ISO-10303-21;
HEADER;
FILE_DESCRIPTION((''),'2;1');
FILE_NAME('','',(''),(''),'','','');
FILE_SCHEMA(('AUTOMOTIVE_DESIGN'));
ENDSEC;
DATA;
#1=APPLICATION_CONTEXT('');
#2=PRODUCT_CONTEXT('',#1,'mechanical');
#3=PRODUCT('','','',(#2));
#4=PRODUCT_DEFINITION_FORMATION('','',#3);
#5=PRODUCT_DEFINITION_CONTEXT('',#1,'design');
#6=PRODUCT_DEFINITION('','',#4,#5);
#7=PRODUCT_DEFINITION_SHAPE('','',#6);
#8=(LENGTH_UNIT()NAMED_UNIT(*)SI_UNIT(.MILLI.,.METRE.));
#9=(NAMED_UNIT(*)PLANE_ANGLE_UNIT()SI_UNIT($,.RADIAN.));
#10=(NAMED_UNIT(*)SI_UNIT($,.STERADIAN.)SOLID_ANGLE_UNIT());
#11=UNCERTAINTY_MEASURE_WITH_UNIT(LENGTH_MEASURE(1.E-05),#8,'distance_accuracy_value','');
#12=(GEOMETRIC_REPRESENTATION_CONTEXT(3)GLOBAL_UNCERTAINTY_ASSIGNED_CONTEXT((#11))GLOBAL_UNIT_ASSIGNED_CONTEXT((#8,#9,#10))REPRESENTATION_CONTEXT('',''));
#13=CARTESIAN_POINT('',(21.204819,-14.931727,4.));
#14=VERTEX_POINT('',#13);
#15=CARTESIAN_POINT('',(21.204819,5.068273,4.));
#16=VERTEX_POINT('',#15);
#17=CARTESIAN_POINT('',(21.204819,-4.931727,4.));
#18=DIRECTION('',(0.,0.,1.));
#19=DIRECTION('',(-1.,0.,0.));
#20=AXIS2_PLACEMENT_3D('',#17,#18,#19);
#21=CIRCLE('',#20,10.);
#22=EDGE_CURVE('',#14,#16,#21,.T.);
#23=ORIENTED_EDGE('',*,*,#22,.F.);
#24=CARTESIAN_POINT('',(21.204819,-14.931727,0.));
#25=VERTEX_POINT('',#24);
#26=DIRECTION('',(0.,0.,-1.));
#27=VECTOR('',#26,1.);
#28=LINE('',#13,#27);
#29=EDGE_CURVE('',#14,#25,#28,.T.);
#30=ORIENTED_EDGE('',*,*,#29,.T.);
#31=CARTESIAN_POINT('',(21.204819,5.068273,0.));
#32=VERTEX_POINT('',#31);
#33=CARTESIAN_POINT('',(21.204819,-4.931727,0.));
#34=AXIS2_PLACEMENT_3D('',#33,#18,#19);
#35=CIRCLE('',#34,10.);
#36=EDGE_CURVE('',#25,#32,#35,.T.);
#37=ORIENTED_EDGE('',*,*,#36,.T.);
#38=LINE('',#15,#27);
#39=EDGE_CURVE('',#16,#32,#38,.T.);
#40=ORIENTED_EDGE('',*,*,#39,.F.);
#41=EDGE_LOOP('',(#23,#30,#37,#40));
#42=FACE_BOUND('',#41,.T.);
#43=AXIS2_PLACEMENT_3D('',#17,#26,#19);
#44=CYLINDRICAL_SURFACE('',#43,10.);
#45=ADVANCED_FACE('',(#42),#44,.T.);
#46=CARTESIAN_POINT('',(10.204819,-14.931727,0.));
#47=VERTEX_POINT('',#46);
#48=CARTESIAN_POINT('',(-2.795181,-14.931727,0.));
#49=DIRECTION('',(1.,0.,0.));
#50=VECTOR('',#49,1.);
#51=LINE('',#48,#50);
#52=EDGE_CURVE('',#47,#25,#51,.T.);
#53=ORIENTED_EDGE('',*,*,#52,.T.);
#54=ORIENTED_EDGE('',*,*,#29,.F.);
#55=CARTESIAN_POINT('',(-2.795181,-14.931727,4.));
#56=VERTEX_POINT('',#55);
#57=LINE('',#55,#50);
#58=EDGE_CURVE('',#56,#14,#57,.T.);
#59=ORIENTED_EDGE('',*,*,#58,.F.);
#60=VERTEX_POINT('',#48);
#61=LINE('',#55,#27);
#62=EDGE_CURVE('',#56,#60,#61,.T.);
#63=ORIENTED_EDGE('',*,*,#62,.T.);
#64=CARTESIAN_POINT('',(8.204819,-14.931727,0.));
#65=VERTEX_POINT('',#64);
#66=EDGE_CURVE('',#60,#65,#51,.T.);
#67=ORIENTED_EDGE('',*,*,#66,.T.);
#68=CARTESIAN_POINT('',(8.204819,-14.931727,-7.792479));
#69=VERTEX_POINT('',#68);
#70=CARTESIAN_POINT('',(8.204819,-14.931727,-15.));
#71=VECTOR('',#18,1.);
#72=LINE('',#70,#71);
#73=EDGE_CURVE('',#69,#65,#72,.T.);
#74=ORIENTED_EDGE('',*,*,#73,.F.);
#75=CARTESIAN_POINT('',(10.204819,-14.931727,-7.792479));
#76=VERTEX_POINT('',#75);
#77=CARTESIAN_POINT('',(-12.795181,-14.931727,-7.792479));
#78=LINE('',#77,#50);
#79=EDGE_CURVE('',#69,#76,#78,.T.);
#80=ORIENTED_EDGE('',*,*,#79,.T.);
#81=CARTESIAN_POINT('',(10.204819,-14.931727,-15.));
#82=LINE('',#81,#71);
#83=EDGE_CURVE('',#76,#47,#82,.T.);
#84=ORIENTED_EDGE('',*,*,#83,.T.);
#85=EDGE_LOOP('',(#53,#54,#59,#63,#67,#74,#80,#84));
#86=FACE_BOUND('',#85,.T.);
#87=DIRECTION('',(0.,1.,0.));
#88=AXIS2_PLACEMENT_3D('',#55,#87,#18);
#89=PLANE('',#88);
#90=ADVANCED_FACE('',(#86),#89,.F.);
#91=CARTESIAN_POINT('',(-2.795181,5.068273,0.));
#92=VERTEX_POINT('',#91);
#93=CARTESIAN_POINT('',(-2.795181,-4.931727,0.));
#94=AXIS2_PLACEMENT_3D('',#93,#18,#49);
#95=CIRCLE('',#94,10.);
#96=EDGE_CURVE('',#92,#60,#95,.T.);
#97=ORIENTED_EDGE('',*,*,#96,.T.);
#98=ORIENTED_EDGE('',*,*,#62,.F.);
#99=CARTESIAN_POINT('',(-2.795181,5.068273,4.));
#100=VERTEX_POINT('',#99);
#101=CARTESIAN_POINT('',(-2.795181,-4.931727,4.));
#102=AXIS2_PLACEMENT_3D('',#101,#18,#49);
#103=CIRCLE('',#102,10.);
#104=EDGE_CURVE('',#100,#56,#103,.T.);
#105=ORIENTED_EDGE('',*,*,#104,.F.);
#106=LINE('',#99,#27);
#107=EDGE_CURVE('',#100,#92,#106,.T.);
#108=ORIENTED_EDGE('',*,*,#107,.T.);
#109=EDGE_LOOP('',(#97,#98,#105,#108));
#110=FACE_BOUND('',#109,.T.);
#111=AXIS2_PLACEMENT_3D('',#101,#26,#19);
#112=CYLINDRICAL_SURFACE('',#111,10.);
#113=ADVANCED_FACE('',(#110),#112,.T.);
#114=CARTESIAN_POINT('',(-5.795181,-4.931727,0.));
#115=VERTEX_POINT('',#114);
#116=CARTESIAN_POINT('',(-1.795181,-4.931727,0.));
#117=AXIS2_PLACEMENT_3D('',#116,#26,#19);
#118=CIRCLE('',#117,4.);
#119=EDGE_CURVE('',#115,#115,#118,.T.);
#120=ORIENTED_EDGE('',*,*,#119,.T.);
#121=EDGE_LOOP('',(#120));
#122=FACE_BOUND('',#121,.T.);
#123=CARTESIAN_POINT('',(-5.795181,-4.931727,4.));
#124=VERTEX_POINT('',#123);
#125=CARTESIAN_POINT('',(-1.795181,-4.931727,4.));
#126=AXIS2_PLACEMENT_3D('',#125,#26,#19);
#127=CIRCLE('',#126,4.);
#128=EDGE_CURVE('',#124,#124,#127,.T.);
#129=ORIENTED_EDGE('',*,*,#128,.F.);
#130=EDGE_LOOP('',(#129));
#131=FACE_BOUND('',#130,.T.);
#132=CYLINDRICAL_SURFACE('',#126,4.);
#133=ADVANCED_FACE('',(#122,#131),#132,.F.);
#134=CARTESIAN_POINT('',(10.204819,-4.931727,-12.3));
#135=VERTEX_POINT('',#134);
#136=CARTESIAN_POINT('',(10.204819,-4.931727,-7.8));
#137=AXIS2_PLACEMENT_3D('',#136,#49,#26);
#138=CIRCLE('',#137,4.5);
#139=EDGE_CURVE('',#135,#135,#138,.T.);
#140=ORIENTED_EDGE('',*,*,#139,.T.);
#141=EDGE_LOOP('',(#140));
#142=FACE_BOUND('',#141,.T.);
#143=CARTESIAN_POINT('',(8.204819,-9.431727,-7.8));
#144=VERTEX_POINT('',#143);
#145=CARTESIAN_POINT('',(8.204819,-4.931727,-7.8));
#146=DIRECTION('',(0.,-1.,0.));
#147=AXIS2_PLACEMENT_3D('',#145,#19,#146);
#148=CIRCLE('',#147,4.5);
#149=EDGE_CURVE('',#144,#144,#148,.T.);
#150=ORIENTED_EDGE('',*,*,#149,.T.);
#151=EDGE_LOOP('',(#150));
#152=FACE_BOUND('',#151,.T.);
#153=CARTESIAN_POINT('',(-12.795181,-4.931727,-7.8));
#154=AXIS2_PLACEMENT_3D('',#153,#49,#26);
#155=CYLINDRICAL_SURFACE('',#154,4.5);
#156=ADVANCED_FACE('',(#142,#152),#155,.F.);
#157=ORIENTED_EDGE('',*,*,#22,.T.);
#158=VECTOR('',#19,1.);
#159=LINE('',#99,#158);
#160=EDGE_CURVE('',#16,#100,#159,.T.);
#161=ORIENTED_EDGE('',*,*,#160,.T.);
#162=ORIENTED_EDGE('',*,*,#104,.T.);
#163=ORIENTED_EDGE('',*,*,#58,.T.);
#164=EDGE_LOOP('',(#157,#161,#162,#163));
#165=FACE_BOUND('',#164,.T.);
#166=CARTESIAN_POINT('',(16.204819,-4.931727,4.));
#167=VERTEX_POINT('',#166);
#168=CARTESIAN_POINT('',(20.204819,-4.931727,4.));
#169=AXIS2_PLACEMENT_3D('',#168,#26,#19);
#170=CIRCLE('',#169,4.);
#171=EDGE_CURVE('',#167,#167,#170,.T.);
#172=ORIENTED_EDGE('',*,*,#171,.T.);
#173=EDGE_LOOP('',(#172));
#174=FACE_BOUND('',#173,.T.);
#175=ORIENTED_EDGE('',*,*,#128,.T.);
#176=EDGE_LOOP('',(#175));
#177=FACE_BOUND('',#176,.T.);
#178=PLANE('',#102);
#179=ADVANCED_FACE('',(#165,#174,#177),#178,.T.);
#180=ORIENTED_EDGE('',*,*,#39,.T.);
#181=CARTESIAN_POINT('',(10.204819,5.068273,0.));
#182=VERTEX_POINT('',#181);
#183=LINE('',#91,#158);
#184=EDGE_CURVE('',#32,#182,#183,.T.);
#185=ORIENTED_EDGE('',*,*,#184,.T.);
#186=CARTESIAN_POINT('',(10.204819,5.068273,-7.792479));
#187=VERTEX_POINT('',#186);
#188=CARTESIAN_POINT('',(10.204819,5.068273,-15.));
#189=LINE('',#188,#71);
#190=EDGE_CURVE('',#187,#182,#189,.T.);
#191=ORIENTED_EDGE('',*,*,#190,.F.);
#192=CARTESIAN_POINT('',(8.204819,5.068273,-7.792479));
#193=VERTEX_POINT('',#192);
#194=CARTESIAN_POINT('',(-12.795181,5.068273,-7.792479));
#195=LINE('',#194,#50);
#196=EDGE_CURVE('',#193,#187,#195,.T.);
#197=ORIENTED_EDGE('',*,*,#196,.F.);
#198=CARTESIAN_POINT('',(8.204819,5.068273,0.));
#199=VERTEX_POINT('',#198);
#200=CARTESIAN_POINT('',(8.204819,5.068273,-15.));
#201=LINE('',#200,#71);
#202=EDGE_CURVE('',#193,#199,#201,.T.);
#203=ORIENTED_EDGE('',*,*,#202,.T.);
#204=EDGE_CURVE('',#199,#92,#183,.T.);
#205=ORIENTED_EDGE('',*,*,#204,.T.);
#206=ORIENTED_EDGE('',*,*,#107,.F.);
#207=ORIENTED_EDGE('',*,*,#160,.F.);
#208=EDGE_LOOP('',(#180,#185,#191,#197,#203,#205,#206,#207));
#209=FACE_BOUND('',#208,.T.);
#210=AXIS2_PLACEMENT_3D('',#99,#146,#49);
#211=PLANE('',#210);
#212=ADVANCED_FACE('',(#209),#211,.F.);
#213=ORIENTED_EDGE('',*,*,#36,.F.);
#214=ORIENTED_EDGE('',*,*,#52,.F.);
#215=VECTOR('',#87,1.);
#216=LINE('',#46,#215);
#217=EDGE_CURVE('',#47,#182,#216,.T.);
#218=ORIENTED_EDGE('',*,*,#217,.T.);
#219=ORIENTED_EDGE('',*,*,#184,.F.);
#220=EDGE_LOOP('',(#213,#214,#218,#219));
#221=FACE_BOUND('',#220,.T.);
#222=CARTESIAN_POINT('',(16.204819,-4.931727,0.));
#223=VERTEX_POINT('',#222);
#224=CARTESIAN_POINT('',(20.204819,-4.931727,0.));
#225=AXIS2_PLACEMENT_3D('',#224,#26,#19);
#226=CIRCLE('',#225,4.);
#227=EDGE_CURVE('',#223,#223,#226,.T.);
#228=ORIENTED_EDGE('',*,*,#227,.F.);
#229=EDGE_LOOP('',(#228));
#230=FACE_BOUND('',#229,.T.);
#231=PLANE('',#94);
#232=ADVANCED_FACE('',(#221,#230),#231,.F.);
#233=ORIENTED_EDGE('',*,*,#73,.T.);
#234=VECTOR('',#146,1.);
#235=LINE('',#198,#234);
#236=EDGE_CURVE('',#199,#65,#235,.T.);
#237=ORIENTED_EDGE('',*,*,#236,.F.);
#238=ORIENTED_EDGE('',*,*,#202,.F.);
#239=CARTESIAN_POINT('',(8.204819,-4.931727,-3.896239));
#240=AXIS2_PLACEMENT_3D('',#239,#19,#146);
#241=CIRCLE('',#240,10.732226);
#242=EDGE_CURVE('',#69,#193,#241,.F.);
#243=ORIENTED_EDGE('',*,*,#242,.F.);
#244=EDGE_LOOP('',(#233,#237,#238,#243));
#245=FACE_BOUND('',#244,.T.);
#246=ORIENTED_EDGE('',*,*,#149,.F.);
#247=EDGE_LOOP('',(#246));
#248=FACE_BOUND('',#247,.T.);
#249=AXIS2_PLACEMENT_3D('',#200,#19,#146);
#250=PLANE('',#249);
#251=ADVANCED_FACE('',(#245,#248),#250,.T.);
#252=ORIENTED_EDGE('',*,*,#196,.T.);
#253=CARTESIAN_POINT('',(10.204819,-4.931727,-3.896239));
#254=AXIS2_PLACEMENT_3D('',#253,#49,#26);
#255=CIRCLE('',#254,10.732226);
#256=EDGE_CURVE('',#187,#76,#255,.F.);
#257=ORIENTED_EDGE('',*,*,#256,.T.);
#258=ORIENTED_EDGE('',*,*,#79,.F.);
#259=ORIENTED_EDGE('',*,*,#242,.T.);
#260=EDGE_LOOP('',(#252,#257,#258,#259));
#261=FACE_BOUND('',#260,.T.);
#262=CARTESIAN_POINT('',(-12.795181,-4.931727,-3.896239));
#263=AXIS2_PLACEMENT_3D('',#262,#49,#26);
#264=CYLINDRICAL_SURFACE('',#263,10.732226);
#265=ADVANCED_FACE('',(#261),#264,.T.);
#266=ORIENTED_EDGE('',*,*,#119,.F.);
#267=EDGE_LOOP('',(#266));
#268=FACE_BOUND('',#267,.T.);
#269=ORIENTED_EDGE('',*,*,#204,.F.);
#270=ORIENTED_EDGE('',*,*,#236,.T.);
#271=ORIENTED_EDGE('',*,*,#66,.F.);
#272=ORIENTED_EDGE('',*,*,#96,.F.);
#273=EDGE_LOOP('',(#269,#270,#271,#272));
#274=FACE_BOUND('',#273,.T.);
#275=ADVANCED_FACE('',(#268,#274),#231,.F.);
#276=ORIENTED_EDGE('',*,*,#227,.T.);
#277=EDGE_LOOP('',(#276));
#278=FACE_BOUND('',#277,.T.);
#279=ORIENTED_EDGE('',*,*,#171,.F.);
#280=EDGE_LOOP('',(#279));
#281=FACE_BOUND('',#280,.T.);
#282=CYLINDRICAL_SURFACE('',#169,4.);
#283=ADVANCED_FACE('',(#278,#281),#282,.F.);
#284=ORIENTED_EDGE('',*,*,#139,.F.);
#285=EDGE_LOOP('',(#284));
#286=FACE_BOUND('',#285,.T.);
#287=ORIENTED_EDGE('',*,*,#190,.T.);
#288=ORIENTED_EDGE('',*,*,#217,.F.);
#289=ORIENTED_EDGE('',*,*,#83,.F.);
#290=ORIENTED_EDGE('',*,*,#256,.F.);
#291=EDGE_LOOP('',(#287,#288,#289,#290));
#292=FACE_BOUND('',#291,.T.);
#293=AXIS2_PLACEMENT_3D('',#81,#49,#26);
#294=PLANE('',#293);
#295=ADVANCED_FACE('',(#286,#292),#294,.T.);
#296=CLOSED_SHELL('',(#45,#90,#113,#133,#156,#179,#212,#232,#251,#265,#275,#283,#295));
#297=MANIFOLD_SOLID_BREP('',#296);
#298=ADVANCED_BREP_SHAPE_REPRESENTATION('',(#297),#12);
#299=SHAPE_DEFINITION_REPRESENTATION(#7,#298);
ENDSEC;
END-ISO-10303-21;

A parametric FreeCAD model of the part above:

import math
import FreeCAD as App
import Part
import Sketcher

V = App.Vector

doc = App.newDocument("Part")
body = doc.addObject("PartDesign::Body", "Body")

sketch1 = doc.addObject("Sketcher::SketchObject", "Sketch")
body.addObject(sketch1)
sketch1.AttachmentSupport = (doc.XY_Plane, [""])
sketch1.MapMode = "FlatFace"
sketch1.addGeometry([
    Part.LineSegment(V(21, 5, 0), V(-3, 5, 0)),
    Part.ArcOfCircle(Part.Circle(V(-3, -5, 0), V(0, 0, 1), 10), math.radians(90), math.radians(270)),
    Part.LineSegment(V(-3, -15, 0), V(21, -15, 0)),
    Part.ArcOfCircle(Part.Circle(V(21, -5, 0), V(0, 0, 1), 10), math.radians(-90), math.radians(90)),
], False)
sketch1.addConstraint([
    Sketcher.Constraint("Tangent", 0, 2, 1, 1),
    Sketcher.Constraint("Tangent", 1, 2, 2, 1),
    Sketcher.Constraint("Tangent", 2, 2, 3, 1),
    Sketcher.Constraint("Tangent", 3, 2, 0, 1),
    Sketcher.Constraint("Horizontal", 0),
    Sketcher.Constraint("Horizontal", 2),
    Sketcher.Constraint("Radius", 1, 10.0),
    Sketcher.Constraint("DistanceX", 0, 2, 0, 1, 24.0),
    Sketcher.Constraint("DistanceX", 1, 3, -1, 1, 2.795181),
    Sketcher.Constraint("DistanceY", 1, 3, -1, 1, 4.931727),
])
pad1 = doc.addObject("PartDesign::Pad", "Pad")
body.addObject(pad1)
pad1.Profile = sketch1
pad1.Length = 4

sketch2 = doc.addObject("Sketcher::SketchObject", "Sketch001")
body.addObject(sketch2)
sketch2.AttachmentSupport = (doc.XY_Plane, [""])
sketch2.MapMode = "FlatFace"
sketch2.addGeometry([
    Part.LineSegment(V(8.2, 5.1, 0), V(8.2, -14.9, 0)),
    Part.LineSegment(V(8.2, -14.9, 0), V(10.2, -14.9, 0)),
    Part.LineSegment(V(10.2, -14.9, 0), V(10.2, 5.1, 0)),
    Part.LineSegment(V(10.2, 5.1, 0), V(8.2, 5.1, 0)),
], False)
sketch2.addConstraint([
    Sketcher.Constraint("Coincident", 0, 2, 1, 1),
    Sketcher.Constraint("Coincident", 1, 2, 2, 1),
    Sketcher.Constraint("Coincident", 2, 2, 3, 1),
    Sketcher.Constraint("Coincident", 3, 2, 0, 1),
    Sketcher.Constraint("Vertical", 0),
    Sketcher.Constraint("Horizontal", 1),
    Sketcher.Constraint("Vertical", 2),
    Sketcher.Constraint("Horizontal", 3),
    Sketcher.Constraint("DistanceX", 1, 1, 1, 2, 2.0),
    Sketcher.Constraint("DistanceY", 0, 2, 0, 1, 20.0),
    Sketcher.Constraint("DistanceX", -1, 1, 0, 2, 8.204819),
    Sketcher.Constraint("DistanceY", 0, 2, -1, 1, 14.931727),
])
pad2 = doc.addObject("PartDesign::Pad", "Pad001")
body.addObject(pad2)
pad2.Profile = sketch2
pad2.Length = 15
pad2.Reversed = True

sketch3 = doc.addObject("Sketcher::SketchObject", "Sketch002")
body.addObject(sketch3)
sketch3.AttachmentSupport = (doc.YZ_Plane, [""])
sketch3.MapMode = "FlatFace"
sketch3.AttachmentOffset = App.Placement(V(0, 0, 10.204819), App.Rotation())
sketch3.addGeometry([
    Part.LineSegment(V(5.1, -15, 0), V(5.1, -7.8, 0)),
    Part.ArcOfCircle(Part.Circle(V(-4.9, -3.9, 0), V(0, 0, 1), 10.7), math.radians(-159), math.radians(-21)),
    Part.LineSegment(V(-14.9, -7.8, 0), V(-14.9, -15, 0)),
    Part.LineSegment(V(-14.9, -15, 0), V(5.1, -15, 0)),
    Part.Circle(V(-4.9, -7.8, 0), V(0, 0, 1), 4.5),
], False)
sketch3.addConstraint([
    Sketcher.Constraint("Coincident", 0, 2, 1, 2),
    Sketcher.Constraint("Coincident", 1, 1, 2, 1),
    Sketcher.Constraint("Coincident", 2, 2, 3, 1),
    Sketcher.Constraint("Coincident", 3, 2, 0, 1),
    Sketcher.Constraint("Vertical", 0),
    Sketcher.Constraint("Vertical", 2),
    Sketcher.Constraint("Horizontal", 3),
    Sketcher.Constraint("Horizontal", 0, 2, 1, 1),
    Sketcher.Constraint("Vertical", 1, 3, 4, 3),
    Sketcher.Constraint("Diameter", 4, 9.0),
    Sketcher.Constraint("DistanceX", 3, 1, 3, 2, 20.0),
    Sketcher.Constraint("DistanceY", 2, 2, -1, 1, 15.0),
    Sketcher.Constraint("DistanceY", 4, 3, -1, 1, 7.8),
    Sketcher.Constraint("Radius", 1, 10.732226),
    Sketcher.Constraint("DistanceY", 0, 1, 0, 2, 7.207521),
    Sketcher.Constraint("DistanceX", 1, 3, -1, 1, 4.931727),
])
pocket1 = doc.addObject("PartDesign::Pocket", "Pocket")
body.addObject(pocket1)
pocket1.Profile = sketch3
pocket1.Type = "ThroughAll"

sketch4 = doc.addObject("Sketcher::SketchObject", "Sketch003")
body.addObject(sketch4)
sketch4.AttachmentSupport = (doc.XY_Plane, [""])
sketch4.MapMode = "FlatFace"
sketch4.addGeometry(Part.Circle(V(20.2, -4.9, 0), V(0, 0, 1), 4), False)
sketch4.addConstraint([
    Sketcher.Constraint("Diameter", 0, 8.0),
    Sketcher.Constraint("DistanceX", -1, 1, 0, 3, 20.204819),
    Sketcher.Constraint("DistanceY", 0, 3, -1, 1, 4.931727),
])
pocket2 = doc.addObject("PartDesign::Pocket", "Pocket001")
body.addObject(pocket2)
pocket2.Profile = sketch4
pocket2.Type = "ThroughAll"
pocket2.Reversed = True
doc.recompute()

linearpattern = doc.addObject("PartDesign::LinearPattern", "LinearPattern")
body.addObject(linearpattern)
linearpattern.Originals = [pocket2]
linearpattern.Direction = (doc.X_Axis, [""])
linearpattern.Mode = "offset"
linearpattern.Offset = 22
linearpattern.Occurrences = 2
linearpattern.Reversed = True
body.Tip = linearpattern

doc.recompute()
